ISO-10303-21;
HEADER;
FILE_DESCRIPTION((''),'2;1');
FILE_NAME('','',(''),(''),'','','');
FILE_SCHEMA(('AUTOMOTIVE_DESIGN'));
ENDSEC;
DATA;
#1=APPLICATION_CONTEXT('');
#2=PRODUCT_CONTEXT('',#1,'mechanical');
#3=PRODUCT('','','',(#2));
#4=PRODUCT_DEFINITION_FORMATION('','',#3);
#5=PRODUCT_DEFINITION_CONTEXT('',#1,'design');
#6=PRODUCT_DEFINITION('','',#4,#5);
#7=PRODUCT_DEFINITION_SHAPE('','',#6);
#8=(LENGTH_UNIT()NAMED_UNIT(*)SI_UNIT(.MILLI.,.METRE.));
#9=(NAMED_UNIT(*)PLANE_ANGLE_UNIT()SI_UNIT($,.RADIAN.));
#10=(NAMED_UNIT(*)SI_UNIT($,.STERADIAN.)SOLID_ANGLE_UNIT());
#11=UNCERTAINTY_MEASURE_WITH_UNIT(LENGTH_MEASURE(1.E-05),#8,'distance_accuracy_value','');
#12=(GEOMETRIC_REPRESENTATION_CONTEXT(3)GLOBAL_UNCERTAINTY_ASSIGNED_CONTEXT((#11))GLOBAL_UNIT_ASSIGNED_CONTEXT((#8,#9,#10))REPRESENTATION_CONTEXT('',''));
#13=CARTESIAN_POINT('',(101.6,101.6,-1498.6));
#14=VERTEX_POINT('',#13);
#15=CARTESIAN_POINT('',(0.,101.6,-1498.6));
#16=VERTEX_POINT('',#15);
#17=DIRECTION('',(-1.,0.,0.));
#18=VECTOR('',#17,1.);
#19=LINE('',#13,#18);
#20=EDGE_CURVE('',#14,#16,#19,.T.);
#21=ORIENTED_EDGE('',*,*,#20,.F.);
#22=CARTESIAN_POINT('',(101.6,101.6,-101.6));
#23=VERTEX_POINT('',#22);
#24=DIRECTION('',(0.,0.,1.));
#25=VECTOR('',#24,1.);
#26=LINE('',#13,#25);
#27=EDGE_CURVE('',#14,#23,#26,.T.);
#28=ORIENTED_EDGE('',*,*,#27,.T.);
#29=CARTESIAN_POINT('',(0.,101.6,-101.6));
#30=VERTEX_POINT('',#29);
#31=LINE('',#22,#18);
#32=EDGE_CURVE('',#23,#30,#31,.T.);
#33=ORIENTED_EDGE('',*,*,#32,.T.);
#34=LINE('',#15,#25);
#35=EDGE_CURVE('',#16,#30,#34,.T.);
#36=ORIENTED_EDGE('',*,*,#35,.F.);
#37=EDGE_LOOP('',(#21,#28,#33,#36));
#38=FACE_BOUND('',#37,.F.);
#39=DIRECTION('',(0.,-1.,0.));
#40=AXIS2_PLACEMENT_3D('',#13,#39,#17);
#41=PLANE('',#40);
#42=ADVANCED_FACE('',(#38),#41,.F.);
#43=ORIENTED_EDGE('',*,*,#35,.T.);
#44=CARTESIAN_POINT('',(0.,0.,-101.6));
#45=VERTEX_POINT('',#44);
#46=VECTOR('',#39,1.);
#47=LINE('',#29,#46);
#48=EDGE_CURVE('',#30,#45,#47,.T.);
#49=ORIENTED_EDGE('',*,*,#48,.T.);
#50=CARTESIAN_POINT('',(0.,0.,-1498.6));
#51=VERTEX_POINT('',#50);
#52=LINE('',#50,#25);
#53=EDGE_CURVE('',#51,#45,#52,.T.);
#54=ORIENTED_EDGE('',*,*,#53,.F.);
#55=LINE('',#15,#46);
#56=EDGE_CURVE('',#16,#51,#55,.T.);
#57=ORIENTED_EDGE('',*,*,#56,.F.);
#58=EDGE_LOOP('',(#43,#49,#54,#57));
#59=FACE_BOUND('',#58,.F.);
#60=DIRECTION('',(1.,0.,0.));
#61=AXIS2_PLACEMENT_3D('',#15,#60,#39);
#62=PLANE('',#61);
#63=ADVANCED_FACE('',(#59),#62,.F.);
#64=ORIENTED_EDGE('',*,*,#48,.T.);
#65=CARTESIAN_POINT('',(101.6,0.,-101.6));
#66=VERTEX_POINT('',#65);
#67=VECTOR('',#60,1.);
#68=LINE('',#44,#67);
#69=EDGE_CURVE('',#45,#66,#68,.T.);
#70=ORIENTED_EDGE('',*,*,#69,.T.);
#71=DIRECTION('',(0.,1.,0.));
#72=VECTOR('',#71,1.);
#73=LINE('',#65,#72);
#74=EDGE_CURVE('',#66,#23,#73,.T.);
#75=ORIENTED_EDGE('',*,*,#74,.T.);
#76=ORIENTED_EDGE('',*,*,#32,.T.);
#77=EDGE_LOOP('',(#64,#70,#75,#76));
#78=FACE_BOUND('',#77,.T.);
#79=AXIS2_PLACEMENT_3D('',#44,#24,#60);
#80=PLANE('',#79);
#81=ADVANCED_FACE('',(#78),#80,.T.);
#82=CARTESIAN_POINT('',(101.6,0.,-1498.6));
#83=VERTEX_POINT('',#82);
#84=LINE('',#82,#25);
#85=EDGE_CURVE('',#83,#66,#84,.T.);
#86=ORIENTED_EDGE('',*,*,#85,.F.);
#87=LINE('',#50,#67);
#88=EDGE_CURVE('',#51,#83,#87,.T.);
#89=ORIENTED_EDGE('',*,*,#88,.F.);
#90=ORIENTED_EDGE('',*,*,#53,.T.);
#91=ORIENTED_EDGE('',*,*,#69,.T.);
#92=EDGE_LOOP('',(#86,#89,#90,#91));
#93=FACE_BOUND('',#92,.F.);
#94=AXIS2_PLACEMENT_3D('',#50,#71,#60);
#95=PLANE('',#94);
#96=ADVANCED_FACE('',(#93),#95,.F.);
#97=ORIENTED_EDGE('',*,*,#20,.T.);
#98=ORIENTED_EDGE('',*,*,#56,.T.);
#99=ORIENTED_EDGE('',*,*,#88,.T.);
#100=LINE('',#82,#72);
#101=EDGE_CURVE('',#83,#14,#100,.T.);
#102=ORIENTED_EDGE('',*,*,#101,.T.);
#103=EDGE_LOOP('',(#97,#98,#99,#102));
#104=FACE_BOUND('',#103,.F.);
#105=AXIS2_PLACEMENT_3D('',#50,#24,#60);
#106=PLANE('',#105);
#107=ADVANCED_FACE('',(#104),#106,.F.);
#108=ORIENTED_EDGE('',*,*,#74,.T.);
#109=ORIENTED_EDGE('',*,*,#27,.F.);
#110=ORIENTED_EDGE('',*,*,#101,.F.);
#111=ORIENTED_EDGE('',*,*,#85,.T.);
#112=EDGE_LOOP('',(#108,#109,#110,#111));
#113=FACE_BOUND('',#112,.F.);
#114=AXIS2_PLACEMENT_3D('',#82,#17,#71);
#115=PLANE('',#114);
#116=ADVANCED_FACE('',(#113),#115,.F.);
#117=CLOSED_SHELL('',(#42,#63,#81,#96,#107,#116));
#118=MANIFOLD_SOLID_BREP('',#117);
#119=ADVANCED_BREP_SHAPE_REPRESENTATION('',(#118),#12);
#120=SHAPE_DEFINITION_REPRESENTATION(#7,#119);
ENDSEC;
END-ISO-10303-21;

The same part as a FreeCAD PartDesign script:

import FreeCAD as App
import Part
import Sketcher
Q = App.Units.Quantity


def add_polygon(sketch, points):
    """Adds a closed chain of lines whose ends are joined by coincident constraints."""
    first, n = sketch.GeometryCount, len(points)
    for a, b in zip(points, points[1:] + points[:1]):
        sketch.addGeometry(Part.LineSegment(App.Vector(*a, 0), App.Vector(*b, 0)), False)
    for i in range(n):
        sketch.addConstraint(Sketcher.Constraint("Coincident", first + i, 2, first + (i + 1) % n, 1))

doc = App.newDocument("Part")
body = doc.addObject("PartDesign::Body", "Body")

# Sketch on XY plane
sketch1 = body.newObject("Sketcher::SketchObject", "Sketch")
sketch1.AttachmentSupport = (doc.getObject("XY_Plane"), [""])
sketch1.MapMode = "FlatFace"
sketch1.AttachmentOffset = App.Placement(App.Vector(0, 0, -59 * 25.4), App.Rotation())
add_polygon(sketch1, [(0, 102), (0, 0), (102, 0), (102, 102)])  # lines 0-3
sketch1.addConstraint([
    Sketcher.Constraint("Vertical", 0),
    Sketcher.Constraint("Horizontal", 1),
    Sketcher.Constraint("Vertical", 2),
    Sketcher.Constraint("Horizontal", 3),
    Sketcher.Constraint("Coincident", 0, 2, -1, 1),
    Sketcher.Constraint("Equal", 3, 0),
    Sketcher.Constraint("DistanceX", 1, 1, 1, 2, Q("4 in")),
])
pad1 = body.newObject("PartDesign::Pad", "Pad")
pad1.Profile = sketch1
pad1.Length = Q("55 in")

doc.recompute()
